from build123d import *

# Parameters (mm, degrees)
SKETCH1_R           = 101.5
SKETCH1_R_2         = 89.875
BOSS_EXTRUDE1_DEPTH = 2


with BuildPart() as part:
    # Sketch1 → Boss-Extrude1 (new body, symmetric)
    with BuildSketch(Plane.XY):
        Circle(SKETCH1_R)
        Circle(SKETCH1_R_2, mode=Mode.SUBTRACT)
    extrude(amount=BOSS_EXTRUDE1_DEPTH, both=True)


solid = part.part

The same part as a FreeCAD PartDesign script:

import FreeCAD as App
import Part
import Sketcher
from FreeCAD import Vector

doc = App.newDocument("Part")
params = doc.addObject("Spreadsheet::Sheet", "Params")
for row, (alias, value) in enumerate([
    ("sketch1_diameter", "203 mm"),
    ("sketch1_diameter2", "179.75 mm"),
    ("pad1_length", "4 mm"),
], start=1):
    params.set(f"A{row}", alias)
    params.set(f"B{row}", "=" + value)
    params.setAlias(f"B{row}", alias)

body = doc.addObject("PartDesign::Body", "Body")

sketch1 = doc.addObject("Sketcher::SketchObject", "Sketch")
body.addObject(sketch1)
sketch1.AttachmentSupport = (doc.XY_Plane, [""])
sketch1.MapMode = "FlatFace"
sketch1.addGeometry([
    Part.Circle(Vector(0, 0, 0), Vector(0, 0, 1), 102),
    Part.Circle(Vector(0, 0, 0), Vector(0, 0, 1), 90),
], False)
sketch1.addConstraint([
    Sketcher.Constraint("Coincident", 0, 3, -1, 1),
    Sketcher.Constraint("Coincident", 1, 3, -1, 1),
    Sketcher.Constraint("Diameter", 0, 203.0),
    Sketcher.Constraint("Diameter", 1, 179.75),
])
sketch1.setExpression("Constraints[2]", "Params.sketch1_diameter")
sketch1.setExpression("Constraints[3]", "Params.sketch1_diameter2")
pad1 = doc.addObject("PartDesign::Pad", "Pad")
body.addObject(pad1)
pad1.Profile = sketch1
pad1.setExpression("Length", "Params.pad1_length")
pad1.Midplane = True

doc.recompute()
